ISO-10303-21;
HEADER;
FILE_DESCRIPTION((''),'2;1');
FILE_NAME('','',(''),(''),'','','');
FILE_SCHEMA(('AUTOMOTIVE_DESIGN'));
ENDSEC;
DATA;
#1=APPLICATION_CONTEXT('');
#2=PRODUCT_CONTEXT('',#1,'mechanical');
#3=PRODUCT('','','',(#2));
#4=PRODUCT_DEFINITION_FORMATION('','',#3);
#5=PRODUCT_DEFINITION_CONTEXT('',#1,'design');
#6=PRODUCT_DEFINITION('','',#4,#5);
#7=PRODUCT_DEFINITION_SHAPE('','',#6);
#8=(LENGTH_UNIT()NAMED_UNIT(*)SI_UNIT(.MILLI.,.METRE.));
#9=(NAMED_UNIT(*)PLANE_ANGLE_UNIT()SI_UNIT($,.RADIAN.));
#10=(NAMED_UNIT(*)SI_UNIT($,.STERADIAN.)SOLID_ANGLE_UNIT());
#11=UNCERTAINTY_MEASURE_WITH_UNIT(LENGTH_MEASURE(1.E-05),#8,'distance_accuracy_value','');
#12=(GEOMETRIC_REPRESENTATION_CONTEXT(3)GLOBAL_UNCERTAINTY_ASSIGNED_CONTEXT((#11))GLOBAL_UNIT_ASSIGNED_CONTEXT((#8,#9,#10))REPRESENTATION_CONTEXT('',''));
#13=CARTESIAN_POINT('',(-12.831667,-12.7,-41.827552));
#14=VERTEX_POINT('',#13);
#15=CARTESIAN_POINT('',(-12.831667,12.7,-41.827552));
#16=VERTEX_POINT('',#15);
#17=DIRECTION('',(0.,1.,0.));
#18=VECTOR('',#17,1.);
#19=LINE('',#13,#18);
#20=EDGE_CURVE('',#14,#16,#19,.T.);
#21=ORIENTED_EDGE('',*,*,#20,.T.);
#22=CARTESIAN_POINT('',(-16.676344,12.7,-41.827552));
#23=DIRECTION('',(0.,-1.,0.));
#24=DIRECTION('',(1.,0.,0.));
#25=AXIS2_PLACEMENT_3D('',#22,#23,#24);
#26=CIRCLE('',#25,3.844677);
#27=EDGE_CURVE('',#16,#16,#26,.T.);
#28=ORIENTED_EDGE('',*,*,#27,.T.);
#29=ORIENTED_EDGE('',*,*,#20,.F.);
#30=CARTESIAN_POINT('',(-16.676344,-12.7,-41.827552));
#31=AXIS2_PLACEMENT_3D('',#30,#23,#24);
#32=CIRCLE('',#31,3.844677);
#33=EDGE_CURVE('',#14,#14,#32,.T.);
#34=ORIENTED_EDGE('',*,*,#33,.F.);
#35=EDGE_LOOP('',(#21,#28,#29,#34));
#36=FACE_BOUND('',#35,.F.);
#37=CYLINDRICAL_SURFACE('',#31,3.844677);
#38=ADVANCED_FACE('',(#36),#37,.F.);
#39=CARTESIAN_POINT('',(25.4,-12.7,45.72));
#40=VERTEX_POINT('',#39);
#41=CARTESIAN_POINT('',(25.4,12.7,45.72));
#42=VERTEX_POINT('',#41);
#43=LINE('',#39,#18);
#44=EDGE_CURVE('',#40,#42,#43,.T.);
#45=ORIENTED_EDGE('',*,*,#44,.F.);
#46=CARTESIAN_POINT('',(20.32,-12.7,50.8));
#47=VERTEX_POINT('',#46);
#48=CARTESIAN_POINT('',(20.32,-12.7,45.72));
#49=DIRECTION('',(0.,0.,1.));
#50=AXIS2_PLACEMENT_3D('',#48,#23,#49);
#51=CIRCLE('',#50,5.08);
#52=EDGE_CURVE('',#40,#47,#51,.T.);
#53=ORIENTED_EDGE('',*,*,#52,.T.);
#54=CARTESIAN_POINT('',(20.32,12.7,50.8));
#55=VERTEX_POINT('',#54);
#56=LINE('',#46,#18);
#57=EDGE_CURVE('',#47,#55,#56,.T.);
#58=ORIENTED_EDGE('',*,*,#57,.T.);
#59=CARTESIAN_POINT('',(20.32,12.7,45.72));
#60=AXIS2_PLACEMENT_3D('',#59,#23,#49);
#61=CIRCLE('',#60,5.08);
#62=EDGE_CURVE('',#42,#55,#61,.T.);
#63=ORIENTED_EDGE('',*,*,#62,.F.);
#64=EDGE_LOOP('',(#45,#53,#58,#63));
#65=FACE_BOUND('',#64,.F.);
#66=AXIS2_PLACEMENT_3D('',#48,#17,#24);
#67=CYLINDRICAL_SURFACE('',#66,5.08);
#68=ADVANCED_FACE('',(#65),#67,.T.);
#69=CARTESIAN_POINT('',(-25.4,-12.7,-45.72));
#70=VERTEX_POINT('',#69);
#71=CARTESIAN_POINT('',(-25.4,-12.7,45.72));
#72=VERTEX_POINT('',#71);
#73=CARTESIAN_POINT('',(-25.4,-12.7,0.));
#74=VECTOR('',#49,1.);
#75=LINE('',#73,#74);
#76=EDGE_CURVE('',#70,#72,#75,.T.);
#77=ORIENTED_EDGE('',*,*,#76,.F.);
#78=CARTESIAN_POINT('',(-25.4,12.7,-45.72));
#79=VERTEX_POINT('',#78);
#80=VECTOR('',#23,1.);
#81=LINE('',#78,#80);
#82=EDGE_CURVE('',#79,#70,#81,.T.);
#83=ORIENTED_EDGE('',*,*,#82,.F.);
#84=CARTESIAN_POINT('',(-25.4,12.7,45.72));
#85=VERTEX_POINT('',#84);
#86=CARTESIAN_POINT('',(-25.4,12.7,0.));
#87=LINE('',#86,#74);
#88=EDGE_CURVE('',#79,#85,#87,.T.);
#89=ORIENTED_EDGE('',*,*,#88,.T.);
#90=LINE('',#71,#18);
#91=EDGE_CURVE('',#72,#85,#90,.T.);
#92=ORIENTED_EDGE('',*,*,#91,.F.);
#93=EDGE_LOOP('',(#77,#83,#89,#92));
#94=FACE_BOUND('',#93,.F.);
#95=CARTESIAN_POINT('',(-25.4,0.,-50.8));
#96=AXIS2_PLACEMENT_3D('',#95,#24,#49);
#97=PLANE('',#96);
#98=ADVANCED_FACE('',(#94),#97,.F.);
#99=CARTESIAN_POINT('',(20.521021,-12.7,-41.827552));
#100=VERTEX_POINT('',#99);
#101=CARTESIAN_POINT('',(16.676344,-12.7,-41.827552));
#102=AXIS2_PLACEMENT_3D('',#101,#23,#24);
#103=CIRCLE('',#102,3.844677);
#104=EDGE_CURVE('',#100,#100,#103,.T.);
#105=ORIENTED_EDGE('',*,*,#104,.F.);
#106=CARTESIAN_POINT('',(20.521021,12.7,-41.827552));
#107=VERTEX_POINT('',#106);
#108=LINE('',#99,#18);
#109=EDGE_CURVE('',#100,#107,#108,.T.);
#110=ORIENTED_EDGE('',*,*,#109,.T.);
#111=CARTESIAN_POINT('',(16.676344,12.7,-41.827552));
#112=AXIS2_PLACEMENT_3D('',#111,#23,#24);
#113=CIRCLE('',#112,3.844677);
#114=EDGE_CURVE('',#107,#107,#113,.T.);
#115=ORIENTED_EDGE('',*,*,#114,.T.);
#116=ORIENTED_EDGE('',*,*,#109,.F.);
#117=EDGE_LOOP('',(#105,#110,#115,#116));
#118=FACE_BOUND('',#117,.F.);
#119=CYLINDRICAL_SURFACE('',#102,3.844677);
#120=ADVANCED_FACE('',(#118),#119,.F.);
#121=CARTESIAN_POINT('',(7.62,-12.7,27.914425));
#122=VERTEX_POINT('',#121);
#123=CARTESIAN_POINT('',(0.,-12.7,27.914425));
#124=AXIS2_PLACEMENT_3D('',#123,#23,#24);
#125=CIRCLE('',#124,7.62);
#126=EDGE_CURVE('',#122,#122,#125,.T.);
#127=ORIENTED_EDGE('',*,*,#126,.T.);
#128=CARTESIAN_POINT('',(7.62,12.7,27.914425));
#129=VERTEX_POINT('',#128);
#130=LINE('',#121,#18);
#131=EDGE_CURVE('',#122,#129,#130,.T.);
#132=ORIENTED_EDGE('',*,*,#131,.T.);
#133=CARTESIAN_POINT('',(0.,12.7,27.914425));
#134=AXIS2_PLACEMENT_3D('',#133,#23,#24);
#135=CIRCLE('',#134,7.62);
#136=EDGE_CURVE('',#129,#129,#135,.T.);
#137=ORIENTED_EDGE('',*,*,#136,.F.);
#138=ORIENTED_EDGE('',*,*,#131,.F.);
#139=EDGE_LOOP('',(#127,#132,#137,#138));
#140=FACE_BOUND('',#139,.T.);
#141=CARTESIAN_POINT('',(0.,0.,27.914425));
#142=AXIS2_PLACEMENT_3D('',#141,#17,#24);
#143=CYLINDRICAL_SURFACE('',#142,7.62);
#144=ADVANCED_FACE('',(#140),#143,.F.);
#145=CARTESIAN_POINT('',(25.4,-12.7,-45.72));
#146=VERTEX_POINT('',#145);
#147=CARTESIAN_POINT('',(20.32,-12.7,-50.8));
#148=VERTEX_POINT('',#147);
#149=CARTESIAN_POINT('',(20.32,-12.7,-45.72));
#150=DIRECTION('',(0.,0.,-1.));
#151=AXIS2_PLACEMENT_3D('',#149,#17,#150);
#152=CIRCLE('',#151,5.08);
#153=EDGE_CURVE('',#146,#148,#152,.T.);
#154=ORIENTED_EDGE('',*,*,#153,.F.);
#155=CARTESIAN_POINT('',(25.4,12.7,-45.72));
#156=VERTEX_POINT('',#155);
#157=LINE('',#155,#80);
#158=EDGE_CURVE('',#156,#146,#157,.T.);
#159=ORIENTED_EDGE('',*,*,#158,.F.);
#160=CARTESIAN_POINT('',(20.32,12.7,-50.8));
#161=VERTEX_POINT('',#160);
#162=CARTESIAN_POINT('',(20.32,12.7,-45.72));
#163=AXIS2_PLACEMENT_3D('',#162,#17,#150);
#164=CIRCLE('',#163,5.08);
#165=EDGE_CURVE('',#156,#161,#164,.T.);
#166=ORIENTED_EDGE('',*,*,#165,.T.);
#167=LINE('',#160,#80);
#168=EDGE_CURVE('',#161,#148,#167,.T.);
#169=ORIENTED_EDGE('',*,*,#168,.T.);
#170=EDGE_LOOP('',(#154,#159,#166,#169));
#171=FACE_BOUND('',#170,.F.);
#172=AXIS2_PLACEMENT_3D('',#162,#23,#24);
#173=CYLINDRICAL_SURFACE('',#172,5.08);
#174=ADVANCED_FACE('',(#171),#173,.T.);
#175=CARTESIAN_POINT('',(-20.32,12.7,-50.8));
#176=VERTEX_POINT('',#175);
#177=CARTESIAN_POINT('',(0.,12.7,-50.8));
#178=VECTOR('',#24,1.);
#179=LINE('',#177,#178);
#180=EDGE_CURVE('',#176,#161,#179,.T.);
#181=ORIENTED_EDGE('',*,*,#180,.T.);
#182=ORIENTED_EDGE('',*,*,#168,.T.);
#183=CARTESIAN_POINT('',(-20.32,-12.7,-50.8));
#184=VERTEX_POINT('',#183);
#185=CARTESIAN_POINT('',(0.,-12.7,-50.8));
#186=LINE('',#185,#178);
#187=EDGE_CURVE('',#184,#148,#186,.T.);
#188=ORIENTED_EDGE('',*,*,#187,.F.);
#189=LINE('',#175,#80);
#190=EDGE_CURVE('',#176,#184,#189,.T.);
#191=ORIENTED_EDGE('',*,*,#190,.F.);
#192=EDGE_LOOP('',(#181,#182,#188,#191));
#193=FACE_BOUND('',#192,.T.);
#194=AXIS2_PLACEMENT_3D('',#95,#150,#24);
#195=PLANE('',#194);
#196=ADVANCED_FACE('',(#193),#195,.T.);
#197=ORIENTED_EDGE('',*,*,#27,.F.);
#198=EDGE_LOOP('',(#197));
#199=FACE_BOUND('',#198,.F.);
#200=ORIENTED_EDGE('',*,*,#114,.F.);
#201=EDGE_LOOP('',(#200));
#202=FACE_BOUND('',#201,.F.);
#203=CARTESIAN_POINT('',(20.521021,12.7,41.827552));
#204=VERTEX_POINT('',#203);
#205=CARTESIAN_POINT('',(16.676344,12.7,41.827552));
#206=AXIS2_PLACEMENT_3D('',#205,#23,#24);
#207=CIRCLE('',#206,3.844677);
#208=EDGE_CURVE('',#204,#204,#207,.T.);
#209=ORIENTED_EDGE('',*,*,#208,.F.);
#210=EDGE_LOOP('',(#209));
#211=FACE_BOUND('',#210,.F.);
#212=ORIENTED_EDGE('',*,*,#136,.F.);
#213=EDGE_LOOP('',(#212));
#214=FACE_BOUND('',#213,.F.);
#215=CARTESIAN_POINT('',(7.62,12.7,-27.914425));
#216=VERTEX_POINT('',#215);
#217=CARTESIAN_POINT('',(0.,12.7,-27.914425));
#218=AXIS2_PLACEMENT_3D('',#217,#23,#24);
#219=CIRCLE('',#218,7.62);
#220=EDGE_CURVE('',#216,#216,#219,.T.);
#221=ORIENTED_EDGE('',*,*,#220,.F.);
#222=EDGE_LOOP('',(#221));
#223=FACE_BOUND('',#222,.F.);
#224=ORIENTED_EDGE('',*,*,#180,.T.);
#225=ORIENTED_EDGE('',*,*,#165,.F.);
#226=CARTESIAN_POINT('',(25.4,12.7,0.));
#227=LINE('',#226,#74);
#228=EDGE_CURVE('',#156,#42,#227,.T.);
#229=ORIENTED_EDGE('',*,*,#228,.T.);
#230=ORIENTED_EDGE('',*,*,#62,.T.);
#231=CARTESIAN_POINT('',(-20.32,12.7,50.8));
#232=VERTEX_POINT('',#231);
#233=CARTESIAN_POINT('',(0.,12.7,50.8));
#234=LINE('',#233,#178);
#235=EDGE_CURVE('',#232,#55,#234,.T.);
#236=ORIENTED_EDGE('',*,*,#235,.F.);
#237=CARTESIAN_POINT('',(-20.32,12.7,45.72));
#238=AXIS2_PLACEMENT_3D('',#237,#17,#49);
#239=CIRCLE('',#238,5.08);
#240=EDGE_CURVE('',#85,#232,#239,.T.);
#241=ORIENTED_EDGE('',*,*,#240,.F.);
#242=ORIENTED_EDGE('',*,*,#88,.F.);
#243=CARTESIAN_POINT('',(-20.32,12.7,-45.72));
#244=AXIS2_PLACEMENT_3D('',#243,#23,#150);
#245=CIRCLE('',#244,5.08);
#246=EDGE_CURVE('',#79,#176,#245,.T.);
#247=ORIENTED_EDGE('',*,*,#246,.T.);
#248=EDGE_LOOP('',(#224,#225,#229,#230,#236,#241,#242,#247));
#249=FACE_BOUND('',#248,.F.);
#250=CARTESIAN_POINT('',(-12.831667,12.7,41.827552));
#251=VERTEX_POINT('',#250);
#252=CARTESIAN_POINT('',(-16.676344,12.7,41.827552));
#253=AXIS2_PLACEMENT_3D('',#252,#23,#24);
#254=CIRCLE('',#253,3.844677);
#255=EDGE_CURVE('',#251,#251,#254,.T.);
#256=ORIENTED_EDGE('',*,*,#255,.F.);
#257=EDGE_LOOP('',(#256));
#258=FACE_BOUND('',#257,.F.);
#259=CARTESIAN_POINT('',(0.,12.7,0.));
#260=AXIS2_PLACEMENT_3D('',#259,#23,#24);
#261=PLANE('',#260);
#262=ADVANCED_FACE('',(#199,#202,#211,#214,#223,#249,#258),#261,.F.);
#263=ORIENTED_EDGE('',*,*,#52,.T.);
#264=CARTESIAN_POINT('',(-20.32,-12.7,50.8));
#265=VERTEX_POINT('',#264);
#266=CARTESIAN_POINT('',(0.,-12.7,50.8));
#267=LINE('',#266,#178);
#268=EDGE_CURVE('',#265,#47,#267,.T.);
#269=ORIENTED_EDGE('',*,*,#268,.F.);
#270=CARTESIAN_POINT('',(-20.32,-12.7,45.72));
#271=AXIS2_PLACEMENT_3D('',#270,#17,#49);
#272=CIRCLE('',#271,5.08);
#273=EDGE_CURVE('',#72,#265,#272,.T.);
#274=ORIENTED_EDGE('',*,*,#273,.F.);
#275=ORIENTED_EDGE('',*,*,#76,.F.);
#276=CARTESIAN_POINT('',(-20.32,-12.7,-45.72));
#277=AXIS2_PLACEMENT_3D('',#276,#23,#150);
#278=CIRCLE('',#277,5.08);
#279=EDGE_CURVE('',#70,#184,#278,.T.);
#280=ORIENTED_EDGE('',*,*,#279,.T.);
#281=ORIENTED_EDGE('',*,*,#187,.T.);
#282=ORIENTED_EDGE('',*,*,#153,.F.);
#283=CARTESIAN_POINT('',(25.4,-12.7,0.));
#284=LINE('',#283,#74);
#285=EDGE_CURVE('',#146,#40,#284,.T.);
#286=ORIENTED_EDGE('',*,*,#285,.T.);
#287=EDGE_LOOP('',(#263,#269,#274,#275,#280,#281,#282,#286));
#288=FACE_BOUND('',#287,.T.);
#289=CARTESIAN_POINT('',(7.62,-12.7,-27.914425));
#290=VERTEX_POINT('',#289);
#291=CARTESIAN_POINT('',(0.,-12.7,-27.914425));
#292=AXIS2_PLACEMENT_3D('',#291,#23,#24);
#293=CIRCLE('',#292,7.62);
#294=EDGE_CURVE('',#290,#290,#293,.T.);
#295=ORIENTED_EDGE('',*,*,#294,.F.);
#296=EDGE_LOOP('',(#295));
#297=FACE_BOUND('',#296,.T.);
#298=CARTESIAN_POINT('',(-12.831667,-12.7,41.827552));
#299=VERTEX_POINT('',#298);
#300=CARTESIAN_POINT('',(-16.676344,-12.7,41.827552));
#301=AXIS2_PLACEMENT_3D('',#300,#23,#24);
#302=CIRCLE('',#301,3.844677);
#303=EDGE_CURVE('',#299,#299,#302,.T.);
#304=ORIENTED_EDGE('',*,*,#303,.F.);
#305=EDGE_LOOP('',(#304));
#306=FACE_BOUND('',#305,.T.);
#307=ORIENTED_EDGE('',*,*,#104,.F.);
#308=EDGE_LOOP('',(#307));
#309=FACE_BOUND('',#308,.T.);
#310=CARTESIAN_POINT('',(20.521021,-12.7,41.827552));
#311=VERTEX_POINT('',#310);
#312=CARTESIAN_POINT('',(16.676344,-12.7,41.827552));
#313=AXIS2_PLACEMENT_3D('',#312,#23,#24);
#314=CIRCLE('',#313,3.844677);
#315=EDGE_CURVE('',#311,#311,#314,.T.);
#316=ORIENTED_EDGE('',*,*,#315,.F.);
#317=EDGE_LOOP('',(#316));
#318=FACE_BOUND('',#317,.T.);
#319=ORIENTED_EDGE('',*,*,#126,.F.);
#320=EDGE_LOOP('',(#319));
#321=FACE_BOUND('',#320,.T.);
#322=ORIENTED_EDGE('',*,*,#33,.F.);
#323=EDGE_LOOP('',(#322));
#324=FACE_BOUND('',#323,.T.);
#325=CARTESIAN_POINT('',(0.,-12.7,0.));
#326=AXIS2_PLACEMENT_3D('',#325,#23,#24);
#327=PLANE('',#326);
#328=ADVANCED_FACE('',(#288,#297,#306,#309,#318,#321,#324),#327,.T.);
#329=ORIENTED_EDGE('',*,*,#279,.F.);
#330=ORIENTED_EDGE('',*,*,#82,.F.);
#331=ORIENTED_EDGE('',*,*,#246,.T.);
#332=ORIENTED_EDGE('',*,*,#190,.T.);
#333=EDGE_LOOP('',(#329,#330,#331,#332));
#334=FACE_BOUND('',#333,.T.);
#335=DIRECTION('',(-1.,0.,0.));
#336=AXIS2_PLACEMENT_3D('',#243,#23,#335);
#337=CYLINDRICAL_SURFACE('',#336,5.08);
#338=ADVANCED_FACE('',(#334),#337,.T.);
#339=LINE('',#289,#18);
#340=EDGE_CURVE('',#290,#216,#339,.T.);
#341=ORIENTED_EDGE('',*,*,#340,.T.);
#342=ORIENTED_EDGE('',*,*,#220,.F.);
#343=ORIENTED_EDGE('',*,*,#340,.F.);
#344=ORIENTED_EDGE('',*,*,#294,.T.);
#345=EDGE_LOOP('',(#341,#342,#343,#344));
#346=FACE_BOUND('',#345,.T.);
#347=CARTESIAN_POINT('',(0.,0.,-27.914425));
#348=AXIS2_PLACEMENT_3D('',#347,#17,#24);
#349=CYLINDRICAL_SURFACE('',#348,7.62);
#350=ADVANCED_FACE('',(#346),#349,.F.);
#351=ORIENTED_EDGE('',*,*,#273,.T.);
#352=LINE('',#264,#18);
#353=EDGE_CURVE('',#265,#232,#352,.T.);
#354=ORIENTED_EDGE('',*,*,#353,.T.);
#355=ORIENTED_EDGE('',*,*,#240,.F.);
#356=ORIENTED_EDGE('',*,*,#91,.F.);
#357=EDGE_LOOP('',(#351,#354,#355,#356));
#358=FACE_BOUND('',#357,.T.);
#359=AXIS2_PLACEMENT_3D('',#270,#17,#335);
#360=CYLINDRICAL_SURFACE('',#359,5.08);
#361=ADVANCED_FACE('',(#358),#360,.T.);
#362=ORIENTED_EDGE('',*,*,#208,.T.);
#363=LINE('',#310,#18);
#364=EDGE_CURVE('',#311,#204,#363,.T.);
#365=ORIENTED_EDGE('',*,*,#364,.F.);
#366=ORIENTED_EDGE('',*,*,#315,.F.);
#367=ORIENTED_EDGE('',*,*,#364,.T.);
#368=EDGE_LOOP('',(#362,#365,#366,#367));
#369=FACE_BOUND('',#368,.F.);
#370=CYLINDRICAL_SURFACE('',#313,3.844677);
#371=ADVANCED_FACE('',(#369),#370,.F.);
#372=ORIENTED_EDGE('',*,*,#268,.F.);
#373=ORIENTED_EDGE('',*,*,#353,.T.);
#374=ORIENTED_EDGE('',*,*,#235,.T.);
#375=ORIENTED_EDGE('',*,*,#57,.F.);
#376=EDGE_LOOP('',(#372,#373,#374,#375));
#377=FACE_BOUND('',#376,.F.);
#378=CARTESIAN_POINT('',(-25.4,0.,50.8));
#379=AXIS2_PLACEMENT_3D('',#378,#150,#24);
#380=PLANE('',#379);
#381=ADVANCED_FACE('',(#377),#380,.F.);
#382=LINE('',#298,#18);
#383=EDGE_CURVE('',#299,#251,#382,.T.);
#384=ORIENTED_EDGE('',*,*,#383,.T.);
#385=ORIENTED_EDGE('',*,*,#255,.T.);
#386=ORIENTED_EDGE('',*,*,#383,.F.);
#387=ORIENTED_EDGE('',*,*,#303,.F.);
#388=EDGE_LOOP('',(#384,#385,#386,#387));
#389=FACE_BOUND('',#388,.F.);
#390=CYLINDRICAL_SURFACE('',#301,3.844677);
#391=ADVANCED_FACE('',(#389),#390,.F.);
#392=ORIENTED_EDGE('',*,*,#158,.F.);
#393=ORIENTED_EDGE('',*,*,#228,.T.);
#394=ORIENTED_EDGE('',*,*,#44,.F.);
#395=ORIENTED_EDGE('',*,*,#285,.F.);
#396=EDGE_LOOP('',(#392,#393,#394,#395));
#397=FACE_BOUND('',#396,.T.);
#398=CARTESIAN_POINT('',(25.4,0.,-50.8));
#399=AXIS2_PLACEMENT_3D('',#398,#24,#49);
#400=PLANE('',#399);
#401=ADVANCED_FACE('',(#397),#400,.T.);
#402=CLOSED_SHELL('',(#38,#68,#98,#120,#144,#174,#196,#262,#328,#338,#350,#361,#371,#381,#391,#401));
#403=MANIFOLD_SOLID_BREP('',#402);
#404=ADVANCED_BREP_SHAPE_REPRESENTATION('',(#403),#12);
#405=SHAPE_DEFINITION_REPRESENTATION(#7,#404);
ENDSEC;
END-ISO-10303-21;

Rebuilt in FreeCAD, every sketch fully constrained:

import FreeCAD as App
import Part
import Sketcher
from FreeCAD import Vector
Q = App.Units.Quantity


def edges_at(feature, points):
    """Names of the edges that pass closest to the given points."""
    edges = feature.Shape.Edges
    near = lambda p: min(range(len(edges)), key=lambda i: edges[i].distToShape(Part.Vertex(*p))[0])
    return sorted({f"Edge{near(p) + 1}" for p in points})

doc = App.newDocument("Part")
body = doc.addObject("PartDesign::Body", "Body")

# Sketch on XZ plane
sketch1 = body.newObject("Sketcher::SketchObject", "Sketch")
sketch1.AttachmentSupport = (doc.getObject("XZ_Plane"), [""])
sketch1.MapMode = "FlatFace"
sketch1.addGeometry(Part.LineSegment(Vector(-25.4, 50.8, 0), Vector(-25.4, -50.8, 0)), False)
sketch1.addGeometry(Part.LineSegment(Vector(-25.4, -50.8, 0), Vector(25.4, -50.8, 0)), False)
sketch1.addGeometry(Part.LineSegment(Vector(25.4, -50.8, 0), Vector(25.4, 50.8, 0)), False)
sketch1.addGeometry(Part.LineSegment(Vector(25.4, 50.8, 0), Vector(-25.4, 50.8, 0)), False)
sketch1.addGeometry(Part.Circle(Vector(0, -27.914425, 0), Vector(0, 0, 1), 7.62), False)
sketch1.addGeometry(Part.Circle(Vector(0, 27.914425, 0), Vector(0, 0, 1), 7.62), False)
sketch1.addConstraint(Sketcher.Constraint("Coincident", 0, 2, 1, 1))
sketch1.addConstraint(Sketcher.Constraint("Coincident", 1, 2, 2, 1))
sketch1.addConstraint(Sketcher.Constraint("Coincident", 2, 2, 3, 1))
sketch1.addConstraint(Sketcher.Constraint("Coincident", 3, 2, 0, 1))
sketch1.addConstraint(Sketcher.Constraint("Vertical", 0))
sketch1.addConstraint(Sketcher.Constraint("Horizontal", 1))
sketch1.addConstraint(Sketcher.Constraint("Vertical", 2))
sketch1.addConstraint(Sketcher.Constraint("Horizontal", 3))
sketch1.addConstraint(Sketcher.Constraint("Equal", 4, 5))
sketch1.addConstraint(Sketcher.Constraint("Symmetric", 4, 3, 5, 3, -1, 1))
sketch1.addConstraint(Sketcher.Constraint("Symmetric", 0, 2, 2, 2, -1, 1))
sketch1.addConstraint(Sketcher.Constraint("PointOnObject", 4, 3, -2))
sketch1.addConstraint(Sketcher.Constraint("Diameter", 4, Q("0.6 in")))
sketch1.addConstraint(Sketcher.Constraint("DistanceX", 1, 1, 1, 2, Q("2 in")))
sketch1.addConstraint(Sketcher.Constraint("DistanceY", 0, 2, 0, 1, Q("4 in")))
sketch1.addConstraint(Sketcher.Constraint("DistanceY", 4, 3, 5, 3, Q("55.82885 mm")))
pad1 = body.newObject("PartDesign::Pad", "Pad")
pad1.Profile = sketch1
pad1.Length = Q("1 in")
pad1.Midplane = True
doc.recompute()

fillet = body.newObject("PartDesign::Fillet", "Fillet")
fillet.Base = (pad1, edges_at(pad1, [
    (25.4, 0, 50.8),
    (25.4, 0, -50.8),
    (-25.4, 0, -50.8),
    (-25.4, 0, 50.8),
]))
fillet.Radius = Q("0.2 in")

# Sketch on XZ plane
sketch2 = body.newObject("Sketcher::SketchObject", "Sketch001")
sketch2.AttachmentSupport = (doc.getObject("XZ_Plane"), [""])
sketch2.MapMode = "FlatFace"
sketch2.AttachmentOffset = App.Placement(Vector(0, 0, 0.5 * 25.4), App.Rotation())
sketch2.addGeometry(Part.Circle(Vector(-16.676344, 41.827552, 0), Vector(0, 0, 1), 3.844677), False)
sketch2.addGeometry(Part.Circle(Vector(16.676344, 41.827552, 0), Vector(0, 0, 1), 3.844677), False)
sketch2.addGeometry(Part.Circle(Vector(-16.676344, -41.827552, 0), Vector(0, 0, 1), 3.844677), False)
sketch2.addGeometry(Part.Circle(Vector(16.676344, -41.827552, 0), Vector(0, 0, 1), 3.844677), False)
sketch2.addConstraint(Sketcher.Constraint("Equal", 0, 1))
sketch2.addConstraint(Sketcher.Constraint("Equal", 1, 2))
sketch2.addConstraint(Sketcher.Constraint("Equal", 2, 3))
sketch2.addConstraint(Sketcher.Constraint("Symmetric", 1, 3, 2, 3, -1, 1))
sketch2.addConstraint(Sketcher.Constraint("Symmetric", 0, 3, 3, 3, -1, 1))
sketch2.addConstraint(Sketcher.Constraint("Symmetric", 0, 3, 1, 3, -2))
sketch2.addConstraint(Sketcher.Constraint("Diameter", 0, Q("7.689354 mm")))
sketch2.addConstraint(Sketcher.Constraint("DistanceY", -1, 1, 0, 3, Q("41.827552 mm")))
sketch2.addConstraint(Sketcher.Constraint("DistanceX", 0, 3, -1, 1, Q("16.676344 mm")))
pocket1 = body.newObject("PartDesign::Pocket", "Pocket")
pocket1.Profile = sketch2
pocket1.Length = Q("1 in")

doc.recompute()
